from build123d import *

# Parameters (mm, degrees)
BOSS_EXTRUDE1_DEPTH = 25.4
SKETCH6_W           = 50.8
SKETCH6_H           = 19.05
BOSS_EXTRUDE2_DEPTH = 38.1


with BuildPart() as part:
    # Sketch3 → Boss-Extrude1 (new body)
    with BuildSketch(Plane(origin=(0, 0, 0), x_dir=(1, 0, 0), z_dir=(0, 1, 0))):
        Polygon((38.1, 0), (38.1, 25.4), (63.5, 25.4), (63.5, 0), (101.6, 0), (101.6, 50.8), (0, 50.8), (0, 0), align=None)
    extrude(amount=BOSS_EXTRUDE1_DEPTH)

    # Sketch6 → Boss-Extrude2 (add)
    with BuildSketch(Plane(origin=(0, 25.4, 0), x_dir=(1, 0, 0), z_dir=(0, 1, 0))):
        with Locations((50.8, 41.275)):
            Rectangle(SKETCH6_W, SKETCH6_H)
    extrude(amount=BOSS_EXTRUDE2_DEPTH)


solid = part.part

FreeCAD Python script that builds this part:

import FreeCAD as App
import Part
import Sketcher
from FreeCAD import Vector
Q = App.Units.Quantity


def add_polygon(sketch, points):
    """Adds a closed chain of lines whose ends are joined by coincident constraints."""
    first, n = sketch.GeometryCount, len(points)
    for a, b in zip(points, points[1:] + points[:1]):
        sketch.addGeometry(Part.LineSegment(App.Vector(*a, 0), App.Vector(*b, 0)), False)
    for i in range(n):
        sketch.addConstraint(Sketcher.Constraint("Coincident", first + i, 2, first + (i + 1) % n, 1))

doc = App.newDocument("Part")
params = doc.addObject("Spreadsheet::Sheet", "Params")
for row, (alias, value) in enumerate([
    ("sketch1_width", "1 in"),
    ("sketch1_width2", "4 in"),
    ("sketch1_height", "2 in"),
    ("pad1_length", "1 in"),
    ("sketch2_width", "2 in"),
    ("sketch2_height", "0.75 in"),
    ("pad2_length", "1.5 in"),
], start=1):
    params.set(f"A{row}", alias)
    params.set(f"B{row}", "=" + value)
    params.setAlias(f"B{row}", alias)

body = doc.addObject("PartDesign::Body", "Body")

sketch1 = doc.addObject("Sketcher::SketchObject", "Sketch")
body.addObject(sketch1)
sketch1.AttachmentSupport = (doc.XZ_Plane, [""])
sketch1.MapMode = "FlatFace"
add_polygon(sketch1, [(38, 0), (38, -25), (64, -25), (64, 0), (102, 0), (102, -51), (0, -51), (0, 0)])
sketch1.addConstraint([
    Sketcher.Constraint("Vertical", 0),
    Sketcher.Constraint("Horizontal", 1),
    Sketcher.Constraint("Vertical", 2),
    Sketcher.Constraint("Horizontal", 3),
    Sketcher.Constraint("Vertical", 4),
    Sketcher.Constraint("Horizontal", 5),
    Sketcher.Constraint("Vertical", 6),
    Sketcher.Constraint("Horizontal", 7),
    Sketcher.Constraint("Coincident", 6, 2, -1, 1),
    Sketcher.Constraint("PointOnObject", 2, 2, -1),
    Sketcher.Constraint("Equal", 3, 7),
    Sketcher.Constraint("Equal", 1, 0),
    Sketcher.Constraint("DistanceX", 1, 1, 1, 2, Q("1 in")),
    Sketcher.Constraint("DistanceX", 5, 2, 5, 1, Q("4 in")),
    Sketcher.Constraint("DistanceY", 4, 2, 4, 1, Q("2 in")),
])
sketch1.setExpression("Constraints[20]", "Params.sketch1_width")
sketch1.setExpression("Constraints[21]", "Params.sketch1_width2")
sketch1.setExpression("Constraints[22]", "Params.sketch1_height")
pad1 = doc.addObject("PartDesign::Pad", "Pad")
body.addObject(pad1)
pad1.Profile = sketch1
pad1.setExpression("Length", "Params.pad1_length")
pad1.Reversed = True

sketch2 = doc.addObject("Sketcher::SketchObject", "Sketch001")
body.addObject(sketch2)
sketch2.AttachmentSupport = (doc.XZ_Plane, [""])
sketch2.MapMode = "FlatFace"
sketch2.AttachmentOffset = App.Placement(Vector(0, 0, -1 * 25.4), App.Rotation())
add_polygon(sketch2, [(25, -51), (25, -32), (76, -32), (76, -51)])
sketch2.addConstraint([
    Sketcher.Constraint("Vertical", 0),
    Sketcher.Constraint("Horizontal", 1),
    Sketcher.Constraint("Vertical", 2),
    Sketcher.Constraint("Horizontal", 3),
    Sketcher.Constraint("DistanceX", 1, 1, 1, 2, Q("2 in")),
    Sketcher.Constraint("DistanceX", -1, 1, 0, 2, Q("1 in")),
    Sketcher.Constraint("DistanceY", 2, 2, -1, 1, Q("2 in")),
    Sketcher.Constraint("DistanceY", 0, 1, 0, 2, Q("0.75 in")),
])
sketch2.setExpression("Constraints[8]", "Params.sketch2_width")
sketch2.setExpression("Constraints[11]", "Params.sketch2_height")
pad2 = doc.addObject("PartDesign::Pad", "Pad001")
body.addObject(pad2)
pad2.Profile = sketch2
pad2.setExpression("Length", "Params.pad2_length")
pad2.Reversed = True

doc.recompute()
